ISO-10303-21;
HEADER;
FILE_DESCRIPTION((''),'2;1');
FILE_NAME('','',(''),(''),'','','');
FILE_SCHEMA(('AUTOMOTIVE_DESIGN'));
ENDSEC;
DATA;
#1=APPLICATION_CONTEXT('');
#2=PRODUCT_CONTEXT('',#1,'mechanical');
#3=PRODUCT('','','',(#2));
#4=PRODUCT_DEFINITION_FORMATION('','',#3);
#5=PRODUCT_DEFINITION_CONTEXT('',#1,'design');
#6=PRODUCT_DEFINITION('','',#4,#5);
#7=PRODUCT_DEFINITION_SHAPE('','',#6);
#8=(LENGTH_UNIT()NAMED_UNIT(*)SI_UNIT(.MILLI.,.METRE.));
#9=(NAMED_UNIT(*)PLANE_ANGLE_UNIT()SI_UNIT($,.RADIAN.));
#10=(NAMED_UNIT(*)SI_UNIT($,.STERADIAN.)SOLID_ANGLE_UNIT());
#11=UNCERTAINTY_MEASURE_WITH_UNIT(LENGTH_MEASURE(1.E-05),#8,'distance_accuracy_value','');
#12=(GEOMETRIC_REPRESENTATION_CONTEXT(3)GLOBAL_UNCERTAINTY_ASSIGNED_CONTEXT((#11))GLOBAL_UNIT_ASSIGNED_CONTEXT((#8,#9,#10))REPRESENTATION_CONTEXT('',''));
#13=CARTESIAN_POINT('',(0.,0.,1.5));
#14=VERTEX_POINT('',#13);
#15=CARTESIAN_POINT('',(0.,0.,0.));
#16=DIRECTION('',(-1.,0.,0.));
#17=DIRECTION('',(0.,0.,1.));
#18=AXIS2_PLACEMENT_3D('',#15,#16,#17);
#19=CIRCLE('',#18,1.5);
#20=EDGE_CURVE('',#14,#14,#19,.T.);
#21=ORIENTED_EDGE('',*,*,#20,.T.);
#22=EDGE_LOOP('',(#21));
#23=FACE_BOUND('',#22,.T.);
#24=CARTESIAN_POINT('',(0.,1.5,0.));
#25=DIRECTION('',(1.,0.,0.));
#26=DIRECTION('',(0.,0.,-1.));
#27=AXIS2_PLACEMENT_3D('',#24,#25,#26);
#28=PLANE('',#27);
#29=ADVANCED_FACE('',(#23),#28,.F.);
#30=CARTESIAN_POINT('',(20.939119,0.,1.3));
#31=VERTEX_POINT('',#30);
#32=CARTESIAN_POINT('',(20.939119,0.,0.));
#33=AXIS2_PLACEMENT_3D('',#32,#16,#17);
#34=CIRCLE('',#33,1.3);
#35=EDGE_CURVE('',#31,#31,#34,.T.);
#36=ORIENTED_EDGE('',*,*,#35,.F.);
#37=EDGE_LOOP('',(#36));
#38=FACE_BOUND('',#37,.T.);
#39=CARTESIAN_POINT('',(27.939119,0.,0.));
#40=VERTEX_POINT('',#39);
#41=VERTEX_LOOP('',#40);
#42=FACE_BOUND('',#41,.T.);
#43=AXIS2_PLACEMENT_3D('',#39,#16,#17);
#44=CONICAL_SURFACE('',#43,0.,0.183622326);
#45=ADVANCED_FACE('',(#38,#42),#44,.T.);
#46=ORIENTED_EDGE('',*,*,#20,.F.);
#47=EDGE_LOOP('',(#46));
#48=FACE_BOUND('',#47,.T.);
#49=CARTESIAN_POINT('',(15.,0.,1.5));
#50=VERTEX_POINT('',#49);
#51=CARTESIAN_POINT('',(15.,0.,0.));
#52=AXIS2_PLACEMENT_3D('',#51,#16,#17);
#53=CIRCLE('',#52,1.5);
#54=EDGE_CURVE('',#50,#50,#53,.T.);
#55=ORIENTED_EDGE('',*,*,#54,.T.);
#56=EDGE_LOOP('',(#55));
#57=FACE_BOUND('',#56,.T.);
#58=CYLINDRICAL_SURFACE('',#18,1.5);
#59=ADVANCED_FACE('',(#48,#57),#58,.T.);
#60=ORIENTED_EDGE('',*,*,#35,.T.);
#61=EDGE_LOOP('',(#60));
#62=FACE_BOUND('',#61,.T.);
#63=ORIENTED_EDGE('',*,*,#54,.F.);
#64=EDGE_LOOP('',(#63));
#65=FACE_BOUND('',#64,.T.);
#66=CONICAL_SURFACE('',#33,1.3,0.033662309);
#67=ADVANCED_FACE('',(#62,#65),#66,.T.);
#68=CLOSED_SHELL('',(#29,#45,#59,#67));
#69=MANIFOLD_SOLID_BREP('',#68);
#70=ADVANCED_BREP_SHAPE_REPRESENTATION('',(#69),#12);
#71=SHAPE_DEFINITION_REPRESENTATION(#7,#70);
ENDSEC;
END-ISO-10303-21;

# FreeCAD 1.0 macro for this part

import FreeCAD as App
import Part
import Sketcher
from FreeCAD import Vector
Q = App.Units.Quantity


def add_polygon(sketch, points):
    """Adds a closed chain of lines whose ends are joined by coincident constraints."""
    first, n = sketch.GeometryCount, len(points)
    for a, b in zip(points, points[1:] + points[:1]):
        sketch.addGeometry(Part.LineSegment(App.Vector(*a, 0), App.Vector(*b, 0)), False)
    for i in range(n):
        sketch.addConstraint(Sketcher.Constraint("Coincident", first + i, 2, first + (i + 1) % n, 1))

doc = App.newDocument("Part")
body = doc.addObject("PartDesign::Body", "Body")

sketch1 = body.newObject("Sketcher::SketchObject", "Sketch")
sketch1.AttachmentSupport = (doc.getObject("XY_Plane"), [""])
sketch1.MapMode = "FlatFace"
add_polygon(sketch1, [(0, 0), (27.939119, 0), (20.939119, 1.3), (15, 1.5), (0, 1.5)])
sketch1.addConstraint([
    Sketcher.Constraint("Horizontal", 0),
    Sketcher.Constraint("Horizontal", 3),
    Sketcher.Constraint("Vertical", 4),
    Sketcher.Constraint("Coincident", 4, 2, -1, 1),
    Sketcher.Constraint("DistanceX", 3, 2, 3, 1, Q("15 mm")),
    Sketcher.Constraint("DistanceY", 4, 2, 4, 1, Q("1.5 mm")),
    Sketcher.Constraint("DistanceX", 1, 2, 0, 2, Q("7 mm")),
    Sketcher.Constraint("DistanceY", -1, 1, 1, 2, Q("1.3 mm")),
    Sketcher.Constraint("DistanceX", 0, 1, 0, 2, Q("27.939119 mm")),
])
revolution = body.newObject("PartDesign::Revolution", "Revolution")
revolution.Profile = sketch1
revolution.ReferenceAxis = (sketch1, ["H_Axis"])
revolution.Angle = 360

doc.recompute()
